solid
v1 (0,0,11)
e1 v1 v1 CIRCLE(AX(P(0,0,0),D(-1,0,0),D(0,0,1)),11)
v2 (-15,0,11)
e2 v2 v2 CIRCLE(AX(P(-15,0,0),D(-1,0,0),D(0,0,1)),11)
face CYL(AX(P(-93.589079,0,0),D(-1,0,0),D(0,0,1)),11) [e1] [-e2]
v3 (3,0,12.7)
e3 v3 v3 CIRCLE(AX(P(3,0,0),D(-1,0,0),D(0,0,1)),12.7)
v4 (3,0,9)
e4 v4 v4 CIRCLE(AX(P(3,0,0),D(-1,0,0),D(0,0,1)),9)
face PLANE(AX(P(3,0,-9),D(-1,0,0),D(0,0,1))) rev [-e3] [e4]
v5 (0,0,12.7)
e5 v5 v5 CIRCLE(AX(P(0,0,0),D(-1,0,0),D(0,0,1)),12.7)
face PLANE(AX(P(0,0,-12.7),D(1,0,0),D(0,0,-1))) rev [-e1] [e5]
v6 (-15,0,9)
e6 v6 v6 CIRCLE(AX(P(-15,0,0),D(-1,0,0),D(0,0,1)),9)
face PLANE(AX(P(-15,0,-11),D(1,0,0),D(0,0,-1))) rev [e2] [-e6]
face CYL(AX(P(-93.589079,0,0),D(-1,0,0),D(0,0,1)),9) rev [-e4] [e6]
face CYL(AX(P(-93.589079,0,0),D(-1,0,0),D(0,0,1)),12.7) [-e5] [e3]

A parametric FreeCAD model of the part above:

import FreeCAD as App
import Part
import Sketcher

V = App.Vector
Q = App.Units.Quantity

doc = App.newDocument("Part")
body = doc.addObject("PartDesign::Body", "Body")

# Sketch on XZ plane
sketch1 = body.newObject("Sketcher::SketchObject", "Sketch")
sketch1.AttachmentSupport = (doc.getObject("XZ_Plane"), [""])
sketch1.MapMode = "FlatFace"
sketch1.addGeometry([
    Part.LineSegment(V(0, -12.7, 0), V(0, -11, 0)),  # 0
    Part.LineSegment(V(0, -11, 0), V(-15, -11, 0)),  # 1
    Part.LineSegment(V(-15, -11, 0), V(-15, -9, 0)),  # 2
    Part.LineSegment(V(-15, -9, 0), V(3, -9, 0)),  # 3
    Part.LineSegment(V(3, -9, 0), V(3, -12.7, 0)),  # 4
    Part.LineSegment(V(3, -12.7, 0), V(0, -12.7, 0)),  # 5
], False)
sketch1.addConstraint([
    Sketcher.Constraint("Coincident", 0, 2, 1, 1),
    Sketcher.Constraint("Coincident", 1, 2, 2, 1),
    Sketcher.Constraint("Coincident", 2, 2, 3, 1),
    Sketcher.Constraint("Coincident", 3, 2, 4, 1),
    Sketcher.Constraint("Coincident", 4, 2, 5, 1),
    Sketcher.Constraint("Coincident", 5, 2, 0, 1),
    Sketcher.Constraint("Vertical", 0),
    Sketcher.Constraint("Horizontal", 1),
    Sketcher.Constraint("Vertical", 2),
    Sketcher.Constraint("Horizontal", 3),
    Sketcher.Constraint("Vertical", 4),
    Sketcher.Constraint("Horizontal", 5),
    Sketcher.Constraint("PointOnObject", 0, 2, -2),
    Sketcher.Constraint("DistanceX", 1, 2, 1, 1, Q("15 mm")),
    Sketcher.Constraint("DistanceX", 3, 1, 3, 2, Q("18 mm")),
    Sketcher.Constraint("DistanceY", 2, 1, 2, 2, Q("2 mm")),
    Sketcher.Constraint("DistanceY", 0, 1, 0, 2, Q("1.7 mm")),
    Sketcher.Constraint("DistanceY", 0, 2, -1, 1, Q("11 mm")),
])
revolution = body.newObject("PartDesign::Revolution", "Revolution")
revolution.Profile = sketch1
revolution.ReferenceAxis = (sketch1, ["H_Axis"])
revolution.Angle = 360

doc.recompute()
